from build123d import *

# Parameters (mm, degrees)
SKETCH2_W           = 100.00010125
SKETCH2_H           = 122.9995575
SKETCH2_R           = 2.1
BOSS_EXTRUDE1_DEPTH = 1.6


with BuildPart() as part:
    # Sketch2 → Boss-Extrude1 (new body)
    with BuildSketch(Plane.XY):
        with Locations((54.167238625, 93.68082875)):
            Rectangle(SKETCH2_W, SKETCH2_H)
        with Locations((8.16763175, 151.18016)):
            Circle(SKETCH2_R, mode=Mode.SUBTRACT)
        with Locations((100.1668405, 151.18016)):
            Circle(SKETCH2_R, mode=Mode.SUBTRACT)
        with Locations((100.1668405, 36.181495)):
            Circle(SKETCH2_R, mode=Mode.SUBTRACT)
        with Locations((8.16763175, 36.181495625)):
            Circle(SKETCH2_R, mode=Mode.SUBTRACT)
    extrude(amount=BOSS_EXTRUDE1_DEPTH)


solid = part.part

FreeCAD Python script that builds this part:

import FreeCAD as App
import Part
import Sketcher

V = App.Vector
Q = App.Units.Quantity


def add_polygon(sketch, points):
    """Adds a closed chain of lines whose ends are joined by coincident constraints."""
    first, n = sketch.GeometryCount, len(points)
    for a, b in zip(points, points[1:] + points[:1]):
        sketch.addGeometry(Part.LineSegment(App.Vector(*a, 0), App.Vector(*b, 0)), False)
    for i in range(n):
        sketch.addConstraint(Sketcher.Constraint("Coincident", first + i, 2, first + (i + 1) % n, 1))

doc = App.newDocument("Part")
body = doc.addObject("PartDesign::Body", "Body")

sketch1 = doc.addObject("Sketcher::SketchObject", "Sketch")
body.addObject(sketch1)
sketch1.AttachmentSupport = (doc.XY_Plane, [""])
sketch1.MapMode = "FlatFace"
add_polygon(sketch1, [(4.167188, 155.180608), (4.167188, 32.18105), (104.167289, 32.18105), (104.167289, 155.180608)])
sketch1.addGeometry(Part.Circle(V(8.167632, 36.181496, 0), V(0, 0, 1), 2.1), False)
sketch1.addGeometry(Part.Circle(V(100.166841, 36.181495, 0), V(0, 0, 1), 2.1), False)
sketch1.addGeometry(Part.Circle(V(8.167632, 151.18016, 0), V(0, 0, 1), 2.1), False)
sketch1.addGeometry(Part.Circle(V(100.166841, 151.18016, 0), V(0, 0, 1), 2.1), False)
sketch1.addConstraint([
    Sketcher.Constraint("Vertical", 0),
    Sketcher.Constraint("Horizontal", 1),
    Sketcher.Constraint("Vertical", 2),
    Sketcher.Constraint("Horizontal", 3),
    Sketcher.Constraint("Equal", 4, 5),
    Sketcher.Constraint("Equal", 5, 6),
    Sketcher.Constraint("Equal", 6, 7),
    Sketcher.Constraint("Horizontal", 4, 3, 5, 3),
    Sketcher.Constraint("Horizontal", 6, 3, 7, 3),
    Sketcher.Constraint("Vertical", 4, 3, 6, 3),
    Sketcher.Constraint("Vertical", 5, 3, 7, 3),
    Sketcher.Constraint("Diameter", 4, Q("4.2 mm")),
    Sketcher.Constraint("DistanceX", 1, 1, 1, 2, Q("100.000101 mm")),
    Sketcher.Constraint("DistanceY", 0, 2, 0, 1, Q("122.999558 mm")),
    Sketcher.Constraint("DistanceX", -1, 1, 4, 3, Q("8.167632 mm")),
    Sketcher.Constraint("DistanceX", -1, 1, 5, 3, Q("100.166841 mm")),
    Sketcher.Constraint("DistanceY", -1, 1, 6, 3, Q("151.18016 mm")),
    Sketcher.Constraint("DistanceX", -1, 1, 0, 2, Q("4.167188 mm")),
    Sketcher.Constraint("DistanceY", -1, 1, 0, 2, Q("32.18105 mm")),
    Sketcher.Constraint("DistanceY", 4, 3, 2, 2, Q("118.999112 mm")),
])
pad1 = doc.addObject("PartDesign::Pad", "Pad")
body.addObject(pad1)
pad1.Profile = sketch1
pad1.Length = 1.6

doc.recompute()
